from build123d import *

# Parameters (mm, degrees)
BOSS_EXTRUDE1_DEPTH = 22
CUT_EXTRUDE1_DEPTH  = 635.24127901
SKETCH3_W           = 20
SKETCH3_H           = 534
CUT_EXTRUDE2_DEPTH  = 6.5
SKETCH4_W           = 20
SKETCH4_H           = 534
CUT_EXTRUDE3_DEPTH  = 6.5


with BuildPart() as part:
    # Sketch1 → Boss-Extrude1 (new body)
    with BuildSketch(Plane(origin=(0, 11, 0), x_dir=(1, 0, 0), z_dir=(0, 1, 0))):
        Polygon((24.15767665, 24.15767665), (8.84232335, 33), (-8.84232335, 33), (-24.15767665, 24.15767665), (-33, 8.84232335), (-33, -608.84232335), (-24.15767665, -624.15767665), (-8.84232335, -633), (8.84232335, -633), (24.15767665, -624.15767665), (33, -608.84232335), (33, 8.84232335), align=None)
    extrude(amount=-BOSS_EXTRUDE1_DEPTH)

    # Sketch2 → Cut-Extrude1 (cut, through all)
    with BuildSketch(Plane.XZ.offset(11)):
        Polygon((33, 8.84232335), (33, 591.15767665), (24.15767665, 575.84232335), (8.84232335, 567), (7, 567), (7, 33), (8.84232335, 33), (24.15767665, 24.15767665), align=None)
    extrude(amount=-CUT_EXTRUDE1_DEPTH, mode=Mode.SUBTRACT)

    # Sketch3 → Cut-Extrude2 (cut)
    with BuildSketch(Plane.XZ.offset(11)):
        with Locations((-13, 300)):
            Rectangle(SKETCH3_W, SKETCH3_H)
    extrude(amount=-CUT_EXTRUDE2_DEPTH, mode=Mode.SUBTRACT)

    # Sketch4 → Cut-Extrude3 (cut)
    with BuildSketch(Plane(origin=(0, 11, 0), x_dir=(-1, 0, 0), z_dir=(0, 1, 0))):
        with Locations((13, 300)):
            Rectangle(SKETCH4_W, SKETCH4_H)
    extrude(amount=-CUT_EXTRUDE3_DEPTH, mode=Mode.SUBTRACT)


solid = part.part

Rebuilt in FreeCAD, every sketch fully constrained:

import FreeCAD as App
import Part
import Sketcher

V = App.Vector
Q = App.Units.Quantity


def add_polygon(sketch, points):
    """Adds a closed chain of lines whose ends are joined by coincident constraints."""
    first, n = sketch.GeometryCount, len(points)
    for a, b in zip(points, points[1:] + points[:1]):
        sketch.addGeometry(Part.LineSegment(App.Vector(*a, 0), App.Vector(*b, 0)), False)
    for i in range(n):
        sketch.addConstraint(Sketcher.Constraint("Coincident", first + i, 2, first + (i + 1) % n, 1))

doc = App.newDocument("Part")
body = doc.addObject("PartDesign::Body", "Body")

# Sketch on XZ plane
sketch1 = body.newObject("Sketcher::SketchObject", "Sketch")
sketch1.AttachmentSupport = (doc.getObject("XZ_Plane"), [""])
sketch1.MapMode = "FlatFace"
sketch1.AttachmentOffset = App.Placement(V(0, 0, -11), App.Rotation())
add_polygon(sketch1, [(24, -24), (9, -33), (-9, -33), (-24, -24), (-33, -9), (-33, 609), (-24, 624), (-9, 633), (9, 633), (24, 624), (33, 609), (33, -9)])  # lines 0-11
sketch1.addConstraint([
    Sketcher.Constraint("Horizontal", 1),
    Sketcher.Constraint("Vertical", 4),
    Sketcher.Constraint("Horizontal", 7),
    Sketcher.Constraint("Vertical", 10),
    Sketcher.Constraint("Symmetric", 5, 2, 8, 2, -2),
    Sketcher.Constraint("Symmetric", 4, 2, 9, 2, -2),
    Sketcher.Constraint("Symmetric", 2, 2, 11, 2, -2),
    Sketcher.Constraint("Perpendicular", 0, 3),
    Sketcher.Constraint("Perpendicular", 2, 5),
    Sketcher.Constraint("Perpendicular", 3, 6),
    Sketcher.Constraint("Perpendicular", 5, 8),
    Sketcher.Constraint("Perpendicular", 6, 9),
    Sketcher.Constraint("Perpendicular", 8, 11),
    Sketcher.Constraint("Vertical", 2, 2, 5, 2),
    Sketcher.Constraint("Vertical", 1, 2, 6, 2),
    Sketcher.Constraint("Equal", 2, 3),
    Sketcher.Constraint("Angle", 0, Q("-150 deg")),
    Sketcher.Constraint("DistanceY", 0, 2, -1, 1, Q("33 mm")),
    Sketcher.Constraint("DistanceX", 3, 2, -1, 1, Q("33 mm")),
    Sketcher.Constraint("DistanceY", -1, 1, 6, 2, Q("633 mm")),
    Sketcher.Constraint("DistanceX", 2, 2, 0, 2, Q("33 mm")),
])
pad1 = body.newObject("PartDesign::Pad", "Pad")
pad1.Profile = sketch1
pad1.Length = 22

# Sketch on XZ plane
sketch2 = body.newObject("Sketcher::SketchObject", "Sketch001")
sketch2.AttachmentSupport = (doc.getObject("XZ_Plane"), [""])
sketch2.MapMode = "FlatFace"
sketch2.AttachmentOffset = App.Placement(V(0, 0, 11), App.Rotation())
add_polygon(sketch2, [(33, 8.8), (33, 591.2), (24.2, 575.8), (8.8, 567), (7, 567), (7, 33), (8.8, 33), (24.2, 24.2)])  # lines 0-7
sketch2.addConstraint([
    Sketcher.Constraint("Vertical", 0),
    Sketcher.Constraint("Horizontal", 3),
    Sketcher.Constraint("Vertical", 4),
    Sketcher.Constraint("Horizontal", 5),
    Sketcher.Constraint("Perpendicular", 1, 6),
    Sketcher.Constraint("Perpendicular", 2, 7),
    Sketcher.Constraint("Vertical", 2, 2, 5, 2),
    Sketcher.Constraint("Vertical", 1, 2, 6, 2),
    Sketcher.Constraint("Equal", 1, 2),
    Sketcher.Constraint("Equal", 2, 6),
    Sketcher.Constraint("DistanceY", 4, 2, 4, 1, Q("534 mm")),
    Sketcher.Constraint("Angle", 1, Q("-120 deg")),
    Sketcher.Constraint("DistanceX", -1, 1, 0, 2, Q("33 mm")),
    Sketcher.Constraint("DistanceY", -1, 1, 2, 2, Q("567 mm")),
    Sketcher.Constraint("DistanceX", -1, 1, 3, 2, Q("7 mm")),
    Sketcher.Constraint("DistanceX", 3, 2, 3, 1, Q("1.842323 mm")),
])
pocket1 = body.newObject("PartDesign::Pocket", "Pocket")
pocket1.Profile = sketch2
pocket1.Type = "ThroughAll"

# Sketch on XZ plane
sketch3 = body.newObject("Sketcher::SketchObject", "Sketch002")
sketch3.AttachmentSupport = (doc.getObject("XZ_Plane"), [""])
sketch3.MapMode = "FlatFace"
sketch3.AttachmentOffset = App.Placement(V(0, 0, 11), App.Rotation())
add_polygon(sketch3, [(-23, 567), (-23, 33), (-3, 33), (-3, 567)])  # lines 0-3
sketch3.addConstraint([
    Sketcher.Constraint("Vertical", 0),
    Sketcher.Constraint("Horizontal", 1),
    Sketcher.Constraint("Vertical", 2),
    Sketcher.Constraint("Horizontal", 3),
    Sketcher.Constraint("DistanceX", 1, 1, 1, 2, Q("20 mm")),
    Sketcher.Constraint("DistanceY", 0, 2, 0, 1, Q("534 mm")),
    Sketcher.Constraint("DistanceX", 0, 2, -1, 1, Q("23 mm")),
    Sketcher.Constraint("DistanceY", -1, 1, 0, 2, Q("33 mm")),
])
pocket2 = body.newObject("PartDesign::Pocket", "Pocket001")
pocket2.Profile = sketch3
pocket2.Length = 6.5

# Sketch on XZ plane
sketch4 = body.newObject("Sketcher::SketchObject", "Sketch003")
sketch4.AttachmentSupport = (doc.getObject("XZ_Plane"), [""])
sketch4.MapMode = "FlatFace"
sketch4.AttachmentOffset = App.Placement(V(0, 0, -11), App.Rotation())
add_polygon(sketch4, [(-3, 567), (-3, 33), (-23, 33), (-23, 567)])  # lines 0-3
sketch4.addConstraint([
    Sketcher.Constraint("Vertical", 0),
    Sketcher.Constraint("Horizontal", 1),
    Sketcher.Constraint("Vertical", 2),
    Sketcher.Constraint("Horizontal", 3),
    Sketcher.Constraint("DistanceX", 1, 2, 1, 1, Q("20 mm")),
    Sketcher.Constraint("DistanceY", 0, 2, 0, 1, Q("534 mm")),
    Sketcher.Constraint("DistanceX", 0, 2, -1, 1, Q("3 mm")),
    Sketcher.Constraint("DistanceY", -1, 1, 0, 2, Q("33 mm")),
])
pocket3 = body.newObject("PartDesign::Pocket", "Pocket002")
pocket3.Profile = sketch4
pocket3.Length = 6.5
pocket3.Reversed = True

doc.recompute()
